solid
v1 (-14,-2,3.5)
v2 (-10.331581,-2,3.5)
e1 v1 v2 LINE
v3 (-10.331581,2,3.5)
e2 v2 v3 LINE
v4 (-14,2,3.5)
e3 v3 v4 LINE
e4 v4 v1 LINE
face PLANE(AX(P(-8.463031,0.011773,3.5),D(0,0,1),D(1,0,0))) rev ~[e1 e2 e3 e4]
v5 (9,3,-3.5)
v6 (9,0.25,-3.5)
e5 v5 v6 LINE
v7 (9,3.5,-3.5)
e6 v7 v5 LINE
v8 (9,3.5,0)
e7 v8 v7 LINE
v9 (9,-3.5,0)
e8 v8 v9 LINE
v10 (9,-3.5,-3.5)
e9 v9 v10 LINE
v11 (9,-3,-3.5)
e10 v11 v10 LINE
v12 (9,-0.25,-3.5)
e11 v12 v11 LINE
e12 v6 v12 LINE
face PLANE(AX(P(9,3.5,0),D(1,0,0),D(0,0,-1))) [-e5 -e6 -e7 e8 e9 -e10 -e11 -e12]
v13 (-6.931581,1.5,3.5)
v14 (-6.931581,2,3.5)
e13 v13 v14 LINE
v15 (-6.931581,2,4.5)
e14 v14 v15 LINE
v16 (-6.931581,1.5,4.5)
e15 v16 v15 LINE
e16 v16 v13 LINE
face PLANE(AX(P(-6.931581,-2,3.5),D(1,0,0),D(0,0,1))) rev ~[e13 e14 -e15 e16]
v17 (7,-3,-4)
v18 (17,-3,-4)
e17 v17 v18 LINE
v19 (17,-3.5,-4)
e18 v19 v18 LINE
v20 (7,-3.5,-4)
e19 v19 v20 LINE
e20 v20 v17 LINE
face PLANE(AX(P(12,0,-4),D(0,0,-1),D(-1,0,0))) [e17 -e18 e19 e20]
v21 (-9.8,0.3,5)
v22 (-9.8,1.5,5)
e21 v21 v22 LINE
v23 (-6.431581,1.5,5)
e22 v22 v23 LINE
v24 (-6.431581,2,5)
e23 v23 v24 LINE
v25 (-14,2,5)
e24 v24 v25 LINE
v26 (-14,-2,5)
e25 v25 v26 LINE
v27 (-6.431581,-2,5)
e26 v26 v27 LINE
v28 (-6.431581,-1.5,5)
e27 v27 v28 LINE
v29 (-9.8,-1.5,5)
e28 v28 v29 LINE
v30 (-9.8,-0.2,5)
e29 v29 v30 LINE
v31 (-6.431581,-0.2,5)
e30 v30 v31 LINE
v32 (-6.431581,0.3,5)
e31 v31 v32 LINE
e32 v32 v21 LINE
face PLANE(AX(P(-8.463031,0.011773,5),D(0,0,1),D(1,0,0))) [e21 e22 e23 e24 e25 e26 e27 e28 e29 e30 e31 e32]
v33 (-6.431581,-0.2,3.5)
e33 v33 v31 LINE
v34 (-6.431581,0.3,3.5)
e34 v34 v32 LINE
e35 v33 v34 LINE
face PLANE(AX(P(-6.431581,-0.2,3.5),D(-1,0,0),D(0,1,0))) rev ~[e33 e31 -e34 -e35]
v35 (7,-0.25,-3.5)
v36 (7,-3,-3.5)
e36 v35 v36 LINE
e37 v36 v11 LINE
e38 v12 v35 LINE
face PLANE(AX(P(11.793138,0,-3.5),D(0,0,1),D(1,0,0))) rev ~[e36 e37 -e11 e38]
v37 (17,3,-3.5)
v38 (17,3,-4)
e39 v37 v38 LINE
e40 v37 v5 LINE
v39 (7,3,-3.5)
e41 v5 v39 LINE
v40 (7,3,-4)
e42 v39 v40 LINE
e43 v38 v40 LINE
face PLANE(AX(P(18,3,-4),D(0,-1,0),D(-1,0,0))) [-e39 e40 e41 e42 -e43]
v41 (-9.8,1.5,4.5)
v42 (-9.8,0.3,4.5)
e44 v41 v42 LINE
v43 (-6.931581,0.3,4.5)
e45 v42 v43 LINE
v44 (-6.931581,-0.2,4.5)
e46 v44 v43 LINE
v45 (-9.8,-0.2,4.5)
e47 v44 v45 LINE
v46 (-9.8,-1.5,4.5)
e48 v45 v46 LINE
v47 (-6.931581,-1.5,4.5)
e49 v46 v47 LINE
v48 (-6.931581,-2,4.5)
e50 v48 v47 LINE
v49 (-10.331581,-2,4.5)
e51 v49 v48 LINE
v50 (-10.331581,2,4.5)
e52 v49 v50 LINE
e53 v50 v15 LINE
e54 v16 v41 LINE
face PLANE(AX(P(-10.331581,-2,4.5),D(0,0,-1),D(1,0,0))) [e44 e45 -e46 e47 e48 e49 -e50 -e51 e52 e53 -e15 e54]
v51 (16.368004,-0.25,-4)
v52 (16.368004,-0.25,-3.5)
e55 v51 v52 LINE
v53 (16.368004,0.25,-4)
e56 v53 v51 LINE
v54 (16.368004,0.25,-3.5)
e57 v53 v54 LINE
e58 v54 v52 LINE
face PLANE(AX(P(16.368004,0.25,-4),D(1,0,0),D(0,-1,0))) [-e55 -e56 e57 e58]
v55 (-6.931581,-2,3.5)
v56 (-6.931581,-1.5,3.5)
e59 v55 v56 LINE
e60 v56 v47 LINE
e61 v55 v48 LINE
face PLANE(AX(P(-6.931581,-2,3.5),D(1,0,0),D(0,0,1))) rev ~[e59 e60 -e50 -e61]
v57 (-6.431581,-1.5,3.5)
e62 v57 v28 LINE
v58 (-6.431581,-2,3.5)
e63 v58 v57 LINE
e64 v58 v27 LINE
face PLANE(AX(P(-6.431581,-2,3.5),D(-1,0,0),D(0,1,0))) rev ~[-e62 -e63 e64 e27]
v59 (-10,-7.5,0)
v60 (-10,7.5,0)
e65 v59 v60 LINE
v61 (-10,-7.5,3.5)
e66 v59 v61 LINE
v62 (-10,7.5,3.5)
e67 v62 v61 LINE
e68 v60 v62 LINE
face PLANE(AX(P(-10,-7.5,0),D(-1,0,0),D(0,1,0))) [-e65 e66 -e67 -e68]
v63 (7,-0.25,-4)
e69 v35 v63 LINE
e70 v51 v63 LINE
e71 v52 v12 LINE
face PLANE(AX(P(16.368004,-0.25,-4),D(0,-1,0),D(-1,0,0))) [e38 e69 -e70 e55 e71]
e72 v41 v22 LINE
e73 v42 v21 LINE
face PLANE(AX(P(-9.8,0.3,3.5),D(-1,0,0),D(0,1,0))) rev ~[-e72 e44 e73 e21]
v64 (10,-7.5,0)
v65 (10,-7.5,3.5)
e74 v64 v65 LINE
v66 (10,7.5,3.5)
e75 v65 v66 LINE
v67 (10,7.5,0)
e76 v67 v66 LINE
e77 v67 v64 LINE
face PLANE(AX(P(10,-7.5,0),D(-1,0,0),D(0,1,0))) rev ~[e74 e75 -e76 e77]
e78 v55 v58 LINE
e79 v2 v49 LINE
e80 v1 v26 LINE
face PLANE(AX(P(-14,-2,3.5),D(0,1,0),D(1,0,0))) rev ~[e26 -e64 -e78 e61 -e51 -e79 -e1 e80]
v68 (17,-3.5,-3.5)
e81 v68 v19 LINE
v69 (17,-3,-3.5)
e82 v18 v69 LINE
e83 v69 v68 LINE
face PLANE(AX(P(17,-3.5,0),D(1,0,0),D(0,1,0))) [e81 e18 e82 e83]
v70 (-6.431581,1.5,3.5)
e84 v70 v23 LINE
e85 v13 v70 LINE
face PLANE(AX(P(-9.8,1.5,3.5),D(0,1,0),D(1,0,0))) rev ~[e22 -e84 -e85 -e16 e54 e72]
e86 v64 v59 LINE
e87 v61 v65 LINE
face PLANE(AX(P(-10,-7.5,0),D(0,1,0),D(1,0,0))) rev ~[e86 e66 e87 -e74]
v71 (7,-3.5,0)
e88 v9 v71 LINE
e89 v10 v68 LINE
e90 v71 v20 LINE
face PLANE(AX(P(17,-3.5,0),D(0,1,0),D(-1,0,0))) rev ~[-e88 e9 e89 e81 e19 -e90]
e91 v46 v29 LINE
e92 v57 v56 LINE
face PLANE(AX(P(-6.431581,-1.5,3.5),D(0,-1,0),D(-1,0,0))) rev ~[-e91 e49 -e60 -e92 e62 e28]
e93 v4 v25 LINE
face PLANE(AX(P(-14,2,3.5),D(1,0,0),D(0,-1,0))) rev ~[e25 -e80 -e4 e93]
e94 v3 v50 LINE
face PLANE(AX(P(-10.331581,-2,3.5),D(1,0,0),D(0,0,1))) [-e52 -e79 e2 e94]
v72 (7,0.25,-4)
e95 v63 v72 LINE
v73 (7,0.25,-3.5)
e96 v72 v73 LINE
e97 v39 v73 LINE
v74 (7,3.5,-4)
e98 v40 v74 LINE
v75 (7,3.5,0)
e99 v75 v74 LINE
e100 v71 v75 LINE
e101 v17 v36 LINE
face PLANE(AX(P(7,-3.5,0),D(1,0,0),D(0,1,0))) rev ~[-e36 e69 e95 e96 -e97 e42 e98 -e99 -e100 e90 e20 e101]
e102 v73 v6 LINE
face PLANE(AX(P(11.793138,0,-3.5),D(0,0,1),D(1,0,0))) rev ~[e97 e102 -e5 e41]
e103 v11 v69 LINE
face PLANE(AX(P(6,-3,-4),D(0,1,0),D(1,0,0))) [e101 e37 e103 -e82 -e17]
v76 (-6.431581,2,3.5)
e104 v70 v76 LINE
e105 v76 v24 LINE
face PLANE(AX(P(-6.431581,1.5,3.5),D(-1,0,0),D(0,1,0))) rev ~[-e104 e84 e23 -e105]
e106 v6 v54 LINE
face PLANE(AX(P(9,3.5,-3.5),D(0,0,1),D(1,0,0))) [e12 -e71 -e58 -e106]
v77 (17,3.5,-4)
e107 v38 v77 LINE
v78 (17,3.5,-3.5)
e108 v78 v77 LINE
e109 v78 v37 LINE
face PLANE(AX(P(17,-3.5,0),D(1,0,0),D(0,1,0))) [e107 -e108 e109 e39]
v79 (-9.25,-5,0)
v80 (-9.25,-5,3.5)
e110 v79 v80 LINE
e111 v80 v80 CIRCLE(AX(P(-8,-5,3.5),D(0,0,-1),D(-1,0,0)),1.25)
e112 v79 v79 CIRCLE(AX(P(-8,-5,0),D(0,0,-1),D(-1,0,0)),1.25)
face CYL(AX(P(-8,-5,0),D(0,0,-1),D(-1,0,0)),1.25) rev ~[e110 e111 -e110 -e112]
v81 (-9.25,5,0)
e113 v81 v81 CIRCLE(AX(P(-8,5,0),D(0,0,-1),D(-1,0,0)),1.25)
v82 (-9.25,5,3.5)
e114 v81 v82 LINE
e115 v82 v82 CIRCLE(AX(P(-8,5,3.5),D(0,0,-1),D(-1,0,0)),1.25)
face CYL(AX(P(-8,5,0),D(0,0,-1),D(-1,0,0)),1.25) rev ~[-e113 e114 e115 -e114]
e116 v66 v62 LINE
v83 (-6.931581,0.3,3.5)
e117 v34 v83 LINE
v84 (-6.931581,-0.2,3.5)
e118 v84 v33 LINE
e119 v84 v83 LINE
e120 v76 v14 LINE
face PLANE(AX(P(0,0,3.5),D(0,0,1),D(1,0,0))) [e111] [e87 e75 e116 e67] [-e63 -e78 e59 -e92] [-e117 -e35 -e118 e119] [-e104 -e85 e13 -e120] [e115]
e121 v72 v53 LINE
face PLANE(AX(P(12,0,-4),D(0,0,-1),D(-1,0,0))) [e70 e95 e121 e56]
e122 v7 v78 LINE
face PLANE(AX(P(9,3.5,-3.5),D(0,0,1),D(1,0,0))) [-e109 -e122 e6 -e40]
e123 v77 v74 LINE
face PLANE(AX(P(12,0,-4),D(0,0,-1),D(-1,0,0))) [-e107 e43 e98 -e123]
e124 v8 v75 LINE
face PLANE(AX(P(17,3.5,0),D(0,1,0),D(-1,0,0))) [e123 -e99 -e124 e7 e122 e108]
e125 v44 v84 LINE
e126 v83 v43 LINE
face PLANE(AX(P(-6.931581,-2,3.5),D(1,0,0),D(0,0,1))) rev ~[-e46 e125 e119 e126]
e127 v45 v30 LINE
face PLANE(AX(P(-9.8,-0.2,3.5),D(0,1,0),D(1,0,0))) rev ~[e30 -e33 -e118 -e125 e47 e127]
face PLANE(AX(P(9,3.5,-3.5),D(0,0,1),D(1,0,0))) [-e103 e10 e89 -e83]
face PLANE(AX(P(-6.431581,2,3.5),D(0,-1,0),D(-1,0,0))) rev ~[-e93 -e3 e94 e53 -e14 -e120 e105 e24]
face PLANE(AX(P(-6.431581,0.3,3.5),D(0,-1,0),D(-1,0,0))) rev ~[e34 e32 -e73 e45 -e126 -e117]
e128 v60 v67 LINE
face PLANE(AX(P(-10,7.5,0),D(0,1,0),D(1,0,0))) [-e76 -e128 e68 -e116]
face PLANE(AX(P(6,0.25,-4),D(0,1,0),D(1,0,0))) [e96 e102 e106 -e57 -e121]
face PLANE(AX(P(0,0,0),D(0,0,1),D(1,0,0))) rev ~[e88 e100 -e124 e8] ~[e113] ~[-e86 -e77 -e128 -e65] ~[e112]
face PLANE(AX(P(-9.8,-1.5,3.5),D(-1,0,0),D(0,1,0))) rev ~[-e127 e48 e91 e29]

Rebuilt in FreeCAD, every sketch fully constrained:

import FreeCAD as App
import Part
import Sketcher

V = App.Vector
Q = App.Units.Quantity

doc = App.newDocument("Part")
params = doc.addObject("Spreadsheet::Sheet", "Params")
for row, (alias, value) in enumerate([
    ("sketch1_width", "20 mm"),
    ("sketch1_height", "15 mm"),
    ("pad1_length", "3.5 mm"),
    ("sketch2_height", "4 mm"),
    ("sketch2_height2", "0.5 mm"),
    ("sketch2_height3", "1.3 mm"),
    ("pad2_length", "1.5 mm"),
    ("sketch3_height", "1 mm"),
    ("sketch3_width", "3.4 mm"),
    ("sketch4_diameter", "2.5 mm"),
    ("sketch5_width", "10 mm"),
    ("sketch5_height", "7 mm"),
    ("pad3_length", "4 mm"),
    ("sketch6_width", "12 mm"),
    ("sketch6_height", "6 mm"),
    ("sketch6_height2", "0.5 mm"),
    ("pocket3_length", "0.5 mm"),
    ("sketch7_width", "8 mm"),
    ("sketch7_height", "3.5 mm"),
], start=1):
    params.set(f"A{row}", alias)
    params.set(f"B{row}", "=" + value)
    params.setAlias(f"B{row}", alias)

body = doc.addObject("PartDesign::Body", "Body")

sketch1 = body.newObject("Sketcher::SketchObject", "Sketch")
sketch1.AttachmentSupport = (doc.getObject("XY_Plane"), [""])
sketch1.MapMode = "FlatFace"
sketch1.addGeometry([
    Part.LineSegment(V(-10, 8, 0), V(-10, -8, 0)),
    Part.LineSegment(V(-10, -8, 0), V(10, -8, 0)),
    Part.LineSegment(V(10, -8, 0), V(10, 8, 0)),
    Part.LineSegment(V(10, 8, 0), V(-10, 8, 0)),
], False)
sketch1.addConstraint([
    Sketcher.Constraint("Coincident", 0, 2, 1, 1),
    Sketcher.Constraint("Coincident", 1, 2, 2, 1),
    Sketcher.Constraint("Coincident", 2, 2, 3, 1),
    Sketcher.Constraint("Coincident", 3, 2, 0, 1),
    Sketcher.Constraint("Vertical", 0),
    Sketcher.Constraint("Horizontal", 1),
    Sketcher.Constraint("Vertical", 2),
    Sketcher.Constraint("Horizontal", 3),
    Sketcher.Constraint("Symmetric", 0, 2, 2, 2, -1, 1),
    Sketcher.Constraint("DistanceX", 1, 1, 1, 2, Q("20 mm")),
    Sketcher.Constraint("DistanceY", 0, 2, 0, 1, Q("15 mm")),
])
sketch1.setExpression("Constraints[9]", "Params.sketch1_width")
sketch1.setExpression("Constraints[10]", "Params.sketch1_height")
pad1 = body.newObject("PartDesign::Pad", "Pad")
pad1.Profile = sketch1
pad1.setExpression("Length", "Params.pad1_length")

sketch2 = body.newObject("Sketcher::SketchObject", "Sketch001")
sketch2.AttachmentSupport = (doc.getObject("XY_Plane"), [""])
sketch2.MapMode = "FlatFace"
sketch2.AttachmentOffset = App.Placement(V(0, 0, 3.5), App.Rotation())
sketch2.addGeometry([
    Part.LineSegment(V(-6.4, 2, 0), V(-14, 2, 0)),
    Part.LineSegment(V(-14, 2, 0), V(-14, -2, 0)),
    Part.LineSegment(V(-14, -2, 0), V(-6.4, -2, 0)),
    Part.LineSegment(V(-6.4, -2, 0), V(-6.4, -1.5, 0)),
    Part.LineSegment(V(-6.4, -1.5, 0), V(-9.8, -1.5, 0)),
    Part.LineSegment(V(-9.8, -1.5, 0), V(-9.8, -0.2, 0)),
    Part.LineSegment(V(-9.8, -0.2, 0), V(-6.4, -0.2, 0)),
    Part.LineSegment(V(-6.4, -0.2, 0), V(-6.4, 0.3, 0)),
    Part.LineSegment(V(-6.4, 0.3, 0), V(-9.8, 0.3, 0)),
    Part.LineSegment(V(-9.8, 0.3, 0), V(-9.8, 1.5, 0)),
    Part.LineSegment(V(-9.8, 1.5, 0), V(-6.4, 1.5, 0)),
    Part.LineSegment(V(-6.4, 1.5, 0), V(-6.4, 2, 0)),
], False)
sketch2.addConstraint([
    Sketcher.Constraint("Coincident", 0, 2, 1, 1),
    Sketcher.Constraint("Coincident", 1, 2, 2, 1),
    Sketcher.Constraint("Coincident", 2, 2, 3, 1),
    Sketcher.Constraint("Coincident", 3, 2, 4, 1),
    Sketcher.Constraint("Coincident", 4, 2, 5, 1),
    Sketcher.Constraint("Coincident", 5, 2, 6, 1),
    Sketcher.Constraint("Coincident", 6, 2, 7, 1),
    Sketcher.Constraint("Coincident", 7, 2, 8, 1),
    Sketcher.Constraint("Coincident", 8, 2, 9, 1),
    Sketcher.Constraint("Coincident", 9, 2, 10, 1),
    Sketcher.Constraint("Coincident", 10, 2, 11, 1),
    Sketcher.Constraint("Coincident", 11, 2, 0, 1),
    Sketcher.Constraint("Horizontal", 0),
    Sketcher.Constraint("Vertical", 1),
    Sketcher.Constraint("Horizontal", 2),
    Sketcher.Constraint("Vertical", 3),
    Sketcher.Constraint("Horizontal", 4),
    Sketcher.Constraint("Vertical", 5),
    Sketcher.Constraint("Horizontal", 6),
    Sketcher.Constraint("Vertical", 7),
    Sketcher.Constraint("Horizontal", 8),
    Sketcher.Constraint("Vertical", 9),
    Sketcher.Constraint("Horizontal", 10),
    Sketcher.Constraint("Vertical", 11),
    Sketcher.Constraint("Symmetric", 4, 2, 9, 2, -1),
    Sketcher.Constraint("Symmetric", 2, 2, 11, 2, -1),
    Sketcher.Constraint("Vertical", 3, 2, 6, 2),
    Sketcher.Constraint("Equal", 3, 7),
    Sketcher.Constraint("DistanceY", 1, 2, 1, 1, Q("4 mm")),
    Sketcher.Constraint("DistanceY", 3, 1, 3, 2, Q("0.5 mm")),
    Sketcher.Constraint("DistanceY", 5, 1, 5, 2, Q("1.3 mm")),
    Sketcher.Constraint("DistanceX", 0, 2, -1, 1, Q("14 mm")),
    Sketcher.Constraint("DistanceX", 4, 2, -1, 1, Q("9.8 mm")),
    Sketcher.Constraint("DistanceX", 0, 2, 0, 1, Q("7.568419 mm")),
])
sketch2.setExpression("Constraints[28]", "Params.sketch2_height")
sketch2.setExpression("Constraints[29]", "Params.sketch2_height2")
sketch2.setExpression("Constraints[30]", "Params.sketch2_height3")
pad2 = body.newObject("PartDesign::Pad", "Pad001")
pad2.Profile = sketch2
pad2.setExpression("Length", "Params.pad2_length")

sketch3 = body.newObject("Sketcher::SketchObject", "Sketch002")
sketch3.AttachmentSupport = (doc.getObject("XZ_Plane"), [""])
sketch3.MapMode = "FlatFace"
sketch3.AttachmentOffset = App.Placement(V(0, 0, 2), App.Rotation())
sketch3.addGeometry([
    Part.LineSegment(V(-10.3, 4.5, 0), V(-10.3, 3.5, 0)),
    Part.LineSegment(V(-10.3, 3.5, 0), V(-6.9, 3.5, 0)),
    Part.LineSegment(V(-6.9, 3.5, 0), V(-6.9, 4.5, 0)),
    Part.LineSegment(V(-6.9, 4.5, 0), V(-10.3, 4.5, 0)),
], False)
sketch3.addConstraint([
    Sketcher.Constraint("Coincident", 0, 2, 1, 1),
    Sketcher.Constraint("Coincident", 1, 2, 2, 1),
    Sketcher.Constraint("Coincident", 2, 2, 3, 1),
    Sketcher.Constraint("Coincident", 3, 2, 0, 1),
    Sketcher.Constraint("Vertical", 0),
    Sketcher.Constraint("Horizontal", 1),
    Sketcher.Constraint("Vertical", 2),
    Sketcher.Constraint("Horizontal", 3),
    Sketcher.Constraint("DistanceY", 0, 2, 0, 1, Q("1 mm")),
    Sketcher.Constraint("DistanceX", 1, 1, 1, 2, Q("3.4 mm")),
    Sketcher.Constraint("DistanceY", -1, 1, 0, 2, Q("3.5 mm")),
    Sketcher.Constraint("DistanceX", 0, 2, -1, 1, Q("10.331581 mm")),
])
sketch3.setExpression("Constraints[8]", "Params.sketch3_height")
sketch3.setExpression("Constraints[9]", "Params.sketch3_width")
pocket1 = body.newObject("PartDesign::Pocket", "Pocket")
pocket1.Profile = sketch3
pocket1.Type = "ThroughAll"

sketch4 = body.newObject("Sketcher::SketchObject", "Sketch003")
sketch4.AttachmentSupport = (doc.getObject("XY_Plane"), [""])
sketch4.MapMode = "FlatFace"
sketch4.addGeometry([
    Part.Circle(V(-8, -5, 0), V(0, 0, 1), 1.2),
    Part.Circle(V(-8, 5, 0), V(0, 0, 1), 1.2),
], False)
sketch4.addConstraint([
    Sketcher.Constraint("Equal", 0, 1),
    Sketcher.Constraint("Symmetric", 0, 3, 1, 3, -1),
    Sketcher.Constraint("Diameter", 0, Q("2.5 mm")),
    Sketcher.Constraint("DistanceX", 0, 3, -1, 1, Q("8 mm")),
    Sketcher.Constraint("DistanceY", 0, 3, -1, 1, Q("5 mm")),
])
sketch4.setExpression("Constraints[2]", "Params.sketch4_diameter")
pocket2 = body.newObject("PartDesign::Pocket", "Pocket001")
pocket2.Profile = sketch4
pocket2.Type = "ThroughAll"
pocket2.Reversed = True

sketch5 = body.newObject("Sketcher::SketchObject", "Sketch004")
sketch5.AttachmentSupport = (doc.getObject("XY_Plane"), [""])
sketch5.MapMode = "FlatFace"
sketch5.addGeometry([
    Part.LineSegment(V(17, 4, 0), V(17, -4, 0)),
    Part.LineSegment(V(17, -4, 0), V(7, -4, 0)),
    Part.LineSegment(V(7, -4, 0), V(7, 4, 0)),
    Part.LineSegment(V(7, 4, 0), V(17, 4, 0)),
], False)
sketch5.addConstraint([
    Sketcher.Constraint("Coincident", 0, 2, 1, 1),
    Sketcher.Constraint("Coincident", 1, 2, 2, 1),
    Sketcher.Constraint("Coincident", 2, 2, 3, 1),
    Sketcher.Constraint("Coincident", 3, 2, 0, 1),
    Sketcher.Constraint("Vertical", 0),
    Sketcher.Constraint("Horizontal", 1),
    Sketcher.Constraint("Vertical", 2),
    Sketcher.Constraint("Horizontal", 3),
    Sketcher.Constraint("DistanceX", 1, 2, 1, 1, Q("10 mm")),
    Sketcher.Constraint("DistanceY", 0, 2, 0, 1, Q("7 mm")),
    Sketcher.Constraint("DistanceX", -1, 1, 0, 2, Q("17 mm")),
    Sketcher.Constraint("DistanceY", 0, 2, -1, 1, Q("3.5 mm")),
])
sketch5.setExpression("Constraints[8]", "Params.sketch5_width")
sketch5.setExpression("Constraints[9]", "Params.sketch5_height")
pad3 = body.newObject("PartDesign::Pad", "Pad002")
pad3.Profile = sketch5
pad3.setExpression("Length", "Params.pad3_length")
pad3.Reversed = True

sketch6 = body.newObject("Sketcher::SketchObject", "Sketch005")
sketch6.AttachmentSupport = (doc.getObject("XY_Plane"), [""])
sketch6.MapMode = "FlatFace"
sketch6.AttachmentOffset = App.Placement(V(0, 0, -4), App.Rotation())
sketch6.addGeometry([
    Part.LineSegment(V(18, -3, 0), V(6, -3, 0)),
    Part.LineSegment(V(6, -3, 0), V(6, -0.2, 0)),
    Part.LineSegment(V(6, -0.2, 0), V(16.4, -0.2, 0)),
    Part.LineSegment(V(16.4, -0.2, 0), V(16.4, 0.2, 0)),
    Part.LineSegment(V(16.4, 0.2, 0), V(6, 0.2, 0)),
    Part.LineSegment(V(6, 0.2, 0), V(6, 3, 0)),
    Part.LineSegment(V(6, 3, 0), V(18, 3, 0)),
    Part.LineSegment(V(18, 3, 0), V(18, -3, 0)),
], False)
sketch6.addConstraint([
    Sketcher.Constraint("Coincident", 0, 2, 1, 1),
    Sketcher.Constraint("Coincident", 1, 2, 2, 1),
    Sketcher.Constraint("Coincident", 2, 2, 3, 1),
    Sketcher.Constraint("Coincident", 3, 2, 4, 1),
    Sketcher.Constraint("Coincident", 4, 2, 5, 1),
    Sketcher.Constraint("Coincident", 5, 2, 6, 1),
    Sketcher.Constraint("Coincident", 6, 2, 7, 1),
    Sketcher.Constraint("Coincident", 7, 2, 0, 1),
    Sketcher.Constraint("Horizontal", 0),
    Sketcher.Constraint("Vertical", 1),
    Sketcher.Constraint("Horizontal", 2),
    Sketcher.Constraint("Vertical", 3),
    Sketcher.Constraint("Horizontal", 4),
    Sketcher.Constraint("Vertical", 5),
    Sketcher.Constraint("Horizontal", 6),
    Sketcher.Constraint("Vertical", 7),
    Sketcher.Constraint("Symmetric", 1, 2, 4, 2, -1),
    Sketcher.Constraint("Equal", 1, 5),
    Sketcher.Constraint("DistanceX", 0, 2, 0, 1, Q("12 mm")),
    Sketcher.Constraint("DistanceY", 7, 2, 7, 1, Q("6 mm")),
    Sketcher.Constraint("DistanceY", 3, 1, 3, 2, Q("0.5 mm")),
    Sketcher.Constraint("DistanceX", -1, 1, 0, 2, Q("6 mm")),
    Sketcher.Constraint("DistanceX", 2, 1, 2, 2, Q("10.368004 mm")),
])
sketch6.setExpression("Constraints[18]", "Params.sketch6_width")
sketch6.setExpression("Constraints[19]", "Params.sketch6_height")
sketch6.setExpression("Constraints[20]", "Params.sketch6_height2")
pocket3 = body.newObject("PartDesign::Pocket", "Pocket002")
pocket3.Profile = sketch6
pocket3.setExpression("Length", "Params.pocket3_length")
pocket3.Reversed = True

sketch7 = body.newObject("Sketcher::SketchObject", "Sketch006")
sketch7.AttachmentSupport = (doc.getObject("XZ_Plane"), [""])
sketch7.MapMode = "FlatFace"
sketch7.AttachmentOffset = App.Placement(V(0, 0, -3.5), App.Rotation())
sketch7.addGeometry([
    Part.LineSegment(V(9, -3.5, 0), V(9, 0, 0)),
    Part.LineSegment(V(9, 0, 0), V(17, 0, 0)),
    Part.LineSegment(V(17, 0, 0), V(17, -3.5, 0)),
    Part.LineSegment(V(17, -3.5, 0), V(9, -3.5, 0)),
], False)
sketch7.addConstraint([
    Sketcher.Constraint("Coincident", 0, 2, 1, 1),
    Sketcher.Constraint("Coincident", 1, 2, 2, 1),
    Sketcher.Constraint("Coincident", 2, 2, 3, 1),
    Sketcher.Constraint("Coincident", 3, 2, 0, 1),
    Sketcher.Constraint("Vertical", 0),
    Sketcher.Constraint("Horizontal", 1),
    Sketcher.Constraint("Vertical", 2),
    Sketcher.Constraint("Horizontal", 3),
    Sketcher.Constraint("PointOnObject", 0, 2, -1),
    Sketcher.Constraint("DistanceX", 1, 1, 1, 2, Q("8 mm")),
    Sketcher.Constraint("DistanceY", 0, 1, 0, 2, Q("3.5 mm")),
    Sketcher.Constraint("DistanceX", -1, 1, 0, 2, Q("9 mm")),
])
sketch7.setExpression("Constraints[9]", "Params.sketch7_width")
sketch7.setExpression("Constraints[10]", "Params.sketch7_height")
pocket4 = body.newObject("PartDesign::Pocket", "Pocket003")
pocket4.Profile = sketch7
pocket4.Type = "ThroughAll"
pocket4.Reversed = True

doc.recompute()
